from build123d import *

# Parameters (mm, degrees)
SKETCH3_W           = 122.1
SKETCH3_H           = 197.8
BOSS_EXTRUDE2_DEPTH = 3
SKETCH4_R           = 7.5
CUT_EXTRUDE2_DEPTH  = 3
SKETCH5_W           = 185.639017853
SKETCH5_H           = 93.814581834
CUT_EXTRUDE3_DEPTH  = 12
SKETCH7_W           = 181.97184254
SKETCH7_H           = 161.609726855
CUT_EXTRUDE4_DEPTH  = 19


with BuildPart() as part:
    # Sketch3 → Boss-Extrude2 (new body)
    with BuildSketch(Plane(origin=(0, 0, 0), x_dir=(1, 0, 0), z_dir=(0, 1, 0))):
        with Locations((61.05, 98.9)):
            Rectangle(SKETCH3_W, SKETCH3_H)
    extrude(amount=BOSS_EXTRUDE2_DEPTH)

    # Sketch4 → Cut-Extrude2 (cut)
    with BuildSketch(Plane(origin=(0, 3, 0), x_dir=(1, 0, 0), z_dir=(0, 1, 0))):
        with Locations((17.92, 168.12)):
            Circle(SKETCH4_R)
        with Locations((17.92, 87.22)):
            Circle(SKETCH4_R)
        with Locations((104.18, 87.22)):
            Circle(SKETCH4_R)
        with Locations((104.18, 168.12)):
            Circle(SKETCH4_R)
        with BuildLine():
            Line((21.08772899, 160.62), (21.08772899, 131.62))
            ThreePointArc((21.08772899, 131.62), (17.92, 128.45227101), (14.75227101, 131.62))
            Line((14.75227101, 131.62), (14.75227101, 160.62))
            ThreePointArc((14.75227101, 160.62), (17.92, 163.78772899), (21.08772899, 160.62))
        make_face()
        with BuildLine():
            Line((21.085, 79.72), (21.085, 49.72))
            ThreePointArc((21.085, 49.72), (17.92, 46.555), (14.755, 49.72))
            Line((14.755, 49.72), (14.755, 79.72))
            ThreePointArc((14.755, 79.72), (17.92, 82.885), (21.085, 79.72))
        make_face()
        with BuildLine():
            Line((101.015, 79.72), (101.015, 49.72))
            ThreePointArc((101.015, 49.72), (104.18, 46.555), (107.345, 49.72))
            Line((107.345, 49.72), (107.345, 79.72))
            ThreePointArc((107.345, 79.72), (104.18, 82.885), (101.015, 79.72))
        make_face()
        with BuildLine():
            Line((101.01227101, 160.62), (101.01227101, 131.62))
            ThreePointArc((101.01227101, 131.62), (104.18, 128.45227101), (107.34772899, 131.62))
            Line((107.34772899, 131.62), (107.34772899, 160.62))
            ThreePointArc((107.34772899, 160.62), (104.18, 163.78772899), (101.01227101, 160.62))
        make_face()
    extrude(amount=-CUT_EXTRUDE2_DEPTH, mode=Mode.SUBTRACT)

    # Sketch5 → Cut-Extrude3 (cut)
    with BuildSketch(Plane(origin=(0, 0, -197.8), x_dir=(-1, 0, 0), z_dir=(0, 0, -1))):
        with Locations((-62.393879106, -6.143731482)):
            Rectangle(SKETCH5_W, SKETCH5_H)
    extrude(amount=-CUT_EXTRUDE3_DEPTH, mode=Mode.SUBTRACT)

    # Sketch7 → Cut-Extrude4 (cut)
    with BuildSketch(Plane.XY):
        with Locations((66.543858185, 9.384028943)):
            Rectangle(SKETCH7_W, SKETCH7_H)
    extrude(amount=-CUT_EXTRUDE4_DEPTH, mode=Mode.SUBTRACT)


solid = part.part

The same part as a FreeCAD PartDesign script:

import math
import FreeCAD as App
import Part
import Sketcher
Q = App.Units.Quantity

doc = App.newDocument("Part")
params = doc.addObject("Spreadsheet::Sheet", "Params")
for row, (alias, value) in enumerate([
    ("sketch1_width", "122.1 mm"),
    ("sketch1_height", "197.8 mm"),
    ("pad1_length", "3 mm"),
    ("sketch2_radius", "7.5 mm"),
    ("sketch2_height", "29 mm"),
    ("sketch2_height2", "30 mm"),
    ("pocket1_length", "3 mm"),
    ("pocket2_length", "12 mm"),
    ("pocket3_length", "19 mm"),
], start=1):
    params.set(f"A{row}", alias)
    params.set(f"B{row}", "=" + value)
    params.setAlias(f"B{row}", alias)

body = doc.addObject("PartDesign::Body", "Body")

# Sketch on XZ plane
sketch1 = body.newObject("Sketcher::SketchObject", "Sketch")
sketch1.AttachmentSupport = (doc.getObject("XZ_Plane"), [""])
sketch1.MapMode = "FlatFace"
sketch1.addGeometry(Part.LineSegment(App.Vector(0, -198, 0), App.Vector(0, 0, 0)), False)
sketch1.addGeometry(Part.LineSegment(App.Vector(0, 0, 0), App.Vector(122, 0, 0)), False)
sketch1.addGeometry(Part.LineSegment(App.Vector(122, 0, 0), App.Vector(122, -198, 0)), False)
sketch1.addGeometry(Part.LineSegment(App.Vector(122, -198, 0), App.Vector(0, -198, 0)), False)
sketch1.addConstraint(Sketcher.Constraint("Coincident", 0, 2, 1, 1))
sketch1.addConstraint(Sketcher.Constraint("Coincident", 1, 2, 2, 1))
sketch1.addConstraint(Sketcher.Constraint("Coincident", 2, 2, 3, 1))
sketch1.addConstraint(Sketcher.Constraint("Coincident", 3, 2, 0, 1))
sketch1.addConstraint(Sketcher.Constraint("Vertical", 0))
sketch1.addConstraint(Sketcher.Constraint("Horizontal", 1))
sketch1.addConstraint(Sketcher.Constraint("Vertical", 2))
sketch1.addConstraint(Sketcher.Constraint("Horizontal", 3))
sketch1.addConstraint(Sketcher.Constraint("Coincident", 0, 2, -1, 1))
sketch1.addConstraint(Sketcher.Constraint("DistanceX", 1, 1, 1, 2, Q("122.1 mm")))
sketch1.addConstraint(Sketcher.Constraint("DistanceY", 0, 1, 0, 2, Q("197.8 mm")))
sketch1.setExpression("Constraints[9]", "Params.sketch1_width")
sketch1.setExpression("Constraints[10]", "Params.sketch1_height")
pad1 = body.newObject("PartDesign::Pad", "Pad")
pad1.Profile = sketch1
pad1.setExpression("Length", "Params.pad1_length")
pad1.Reversed = True

# Sketch on XZ plane
sketch2 = body.newObject("Sketcher::SketchObject", "Sketch001")
sketch2.AttachmentSupport = (doc.getObject("XZ_Plane"), [""])
sketch2.MapMode = "FlatFace"
sketch2.AttachmentOffset = App.Placement(App.Vector(0, 0, -3), App.Rotation())
sketch2.addGeometry(Part.ArcOfCircle(Part.Circle(App.Vector(17.9, -168.1, 0), App.Vector(0, 0, 1), 7.5), math.radians(114), math.radians(426)), False)
sketch2.addGeometry(Part.ArcOfCircle(Part.Circle(App.Vector(17.9, -160.6, 0), App.Vector(0, 0, 1), 3.2), math.radians(180), math.radians(192.19)), False)
sketch2.addGeometry(Part.LineSegment(App.Vector(14.8, -160.6, 0), App.Vector(14.8, -131.6, 0)), False)
sketch2.addGeometry(Part.ArcOfCircle(Part.Circle(App.Vector(17.9, -131.6, 0), App.Vector(0, 0, 1), 3.2), math.radians(0), math.radians(180)), False)
sketch2.addGeometry(Part.LineSegment(App.Vector(21.1, -131.6, 0), App.Vector(21.1, -160.6, 0)), False)
sketch2.addGeometry(Part.ArcOfCircle(Part.Circle(App.Vector(17.9, -160.6, 0), App.Vector(0, 0, 1), 3.2), math.radians(-12.19), math.radians(0)), False)
sketch2.addGeometry(Part.ArcOfCircle(Part.Circle(App.Vector(17.9, -87.2, 0), App.Vector(0, 0, 1), 7.5), math.radians(114), math.radians(426)), False)
sketch2.addGeometry(Part.ArcOfCircle(Part.Circle(App.Vector(17.9, -79.7, 0), App.Vector(0, 0, 1), 3.2), math.radians(180), math.radians(192.18)), False)
sketch2.addGeometry(Part.LineSegment(App.Vector(14.8, -79.7, 0), App.Vector(14.8, -49.7, 0)), False)
sketch2.addGeometry(Part.ArcOfCircle(Part.Circle(App.Vector(17.9, -49.7, 0), App.Vector(0, 0, 1), 3.2), math.radians(0), math.radians(180)), False)
sketch2.addGeometry(Part.LineSegment(App.Vector(21.1, -49.7, 0), App.Vector(21.1, -79.7, 0)), False)
sketch2.addGeometry(Part.ArcOfCircle(Part.Circle(App.Vector(17.9, -79.7, 0), App.Vector(0, 0, 1), 3.2), math.radians(-12.18), math.radians(0)), False)
sketch2.addGeometry(Part.ArcOfCircle(Part.Circle(App.Vector(104.2, -87.2, 0), App.Vector(0, 0, 1), 7.5), math.radians(114), math.radians(426)), False)
sketch2.addGeometry(Part.ArcOfCircle(Part.Circle(App.Vector(104.2, -79.7, 0), App.Vector(0, 0, 1), 3.2), math.radians(180), math.radians(192.18)), False)
sketch2.addGeometry(Part.LineSegment(App.Vector(101, -79.7, 0), App.Vector(101, -49.7, 0)), False)
sketch2.addGeometry(Part.ArcOfCircle(Part.Circle(App.Vector(104.2, -49.7, 0), App.Vector(0, 0, 1), 3.2), math.radians(0), math.radians(180)), False)
sketch2.addGeometry(Part.LineSegment(App.Vector(107.3, -49.7, 0), App.Vector(107.3, -79.7, 0)), False)
sketch2.addGeometry(Part.ArcOfCircle(Part.Circle(App.Vector(104.2, -79.7, 0), App.Vector(0, 0, 1), 3.2), math.radians(-12.18), math.radians(0)), False)
sketch2.addGeometry(Part.ArcOfCircle(Part.Circle(App.Vector(104.2, -168.1, 0), App.Vector(0, 0, 1), 7.5), math.radians(114), math.radians(426)), False)
sketch2.addGeometry(Part.ArcOfCircle(Part.Circle(App.Vector(104.2, -160.6, 0), App.Vector(0, 0, 1), 3.2), math.radians(180), math.radians(192.19)), False)
sketch2.addGeometry(Part.LineSegment(App.Vector(101, -160.6, 0), App.Vector(101, -131.6, 0)), False)
sketch2.addGeometry(Part.ArcOfCircle(Part.Circle(App.Vector(104.2, -131.6, 0), App.Vector(0, 0, 1), 3.2), math.radians(0), math.radians(180)), False)
sketch2.addGeometry(Part.LineSegment(App.Vector(107.3, -131.6, 0), App.Vector(107.3, -160.6, 0)), False)
sketch2.addGeometry(Part.ArcOfCircle(Part.Circle(App.Vector(104.2, -160.6, 0), App.Vector(0, 0, 1), 3.2), math.radians(-12.19), math.radians(0)), False)
sketch2.addConstraint(Sketcher.Constraint("Coincident", 0, 1, 1, 2))
sketch2.addConstraint(Sketcher.Constraint("Tangent", 1, 1, 2, 1))
sketch2.addConstraint(Sketcher.Constraint("Tangent", 2, 2, 3, 2))
sketch2.addConstraint(Sketcher.Constraint("Tangent", 3, 1, 4, 1))
sketch2.addConstraint(Sketcher.Constraint("Tangent", 4, 2, 5, 2))
sketch2.addConstraint(Sketcher.Constraint("Coincident", 5, 1, 0, 2))
sketch2.addConstraint(Sketcher.Constraint("Coincident", 6, 1, 7, 2))
sketch2.addConstraint(Sketcher.Constraint("Tangent", 7, 1, 8, 1))
sketch2.addConstraint(Sketcher.Constraint("Tangent", 8, 2, 9, 2))
sketch2.addConstraint(Sketcher.Constraint("Tangent", 9, 1, 10, 1))
sketch2.addConstraint(Sketcher.Constraint("Tangent", 10, 2, 11, 2))
sketch2.addConstraint(Sketcher.Constraint("Coincident", 11, 1, 6, 2))
sketch2.addConstraint(Sketcher.Constraint("Coincident", 12, 1, 13, 2))
sketch2.addConstraint(Sketcher.Constraint("Tangent", 13, 1, 14, 1))
sketch2.addConstraint(Sketcher.Constraint("Tangent", 14, 2, 15, 2))
sketch2.addConstraint(Sketcher.Constraint("Tangent", 15, 1, 16, 1))
sketch2.addConstraint(Sketcher.Constraint("Tangent", 16, 2, 17, 2))
sketch2.addConstraint(Sketcher.Constraint("Coincident", 17, 1, 12, 2))
sketch2.addConstraint(Sketcher.Constraint("Coincident", 18, 1, 19, 2))
sketch2.addConstraint(Sketcher.Constraint("Tangent", 19, 1, 20, 1))
sketch2.addConstraint(Sketcher.Constraint("Tangent", 20, 2, 21, 2))
sketch2.addConstraint(Sketcher.Constraint("Tangent", 21, 1, 22, 1))
sketch2.addConstraint(Sketcher.Constraint("Tangent", 22, 2, 23, 2))
sketch2.addConstraint(Sketcher.Constraint("Coincident", 23, 1, 18, 2))
sketch2.addConstraint(Sketcher.Constraint("Vertical", 2))
sketch2.addConstraint(Sketcher.Constraint("Vertical", 4))
sketch2.addConstraint(Sketcher.Constraint("Vertical", 8))
sketch2.addConstraint(Sketcher.Constraint("Vertical", 10))
sketch2.addConstraint(Sketcher.Constraint("Vertical", 14))
sketch2.addConstraint(Sketcher.Constraint("Vertical", 16))
sketch2.addConstraint(Sketcher.Constraint("Vertical", 20))
sketch2.addConstraint(Sketcher.Constraint("Vertical", 22))
sketch2.addConstraint(Sketcher.Constraint("Coincident", 5, 3, 1, 3))
sketch2.addConstraint(Sketcher.Constraint("Coincident", 11, 3, 7, 3))
sketch2.addConstraint(Sketcher.Constraint("Coincident", 17, 3, 13, 3))
sketch2.addConstraint(Sketcher.Constraint("Coincident", 23, 3, 19, 3))
sketch2.addConstraint(Sketcher.Constraint("Equal", 1, 3))
sketch2.addConstraint(Sketcher.Constraint("Equal", 0, 6))
sketch2.addConstraint(Sketcher.Constraint("Equal", 7, 9))
sketch2.addConstraint(Sketcher.Constraint("Equal", 6, 12))
sketch2.addConstraint(Sketcher.Constraint("Equal", 11, 13))
sketch2.addConstraint(Sketcher.Constraint("Equal", 13, 15))
sketch2.addConstraint(Sketcher.Constraint("Equal", 12, 18))
sketch2.addConstraint(Sketcher.Constraint("Equal", 5, 19))
sketch2.addConstraint(Sketcher.Constraint("Equal", 19, 21))
sketch2.addConstraint(Sketcher.Constraint("Horizontal", 6, 3, 12, 3))
sketch2.addConstraint(Sketcher.Constraint("Horizontal", 11, 3, 13, 3))
sketch2.addConstraint(Sketcher.Constraint("Horizontal", 9, 3, 15, 3))
sketch2.addConstraint(Sketcher.Constraint("Horizontal", 0, 3, 18, 3))
sketch2.addConstraint(Sketcher.Constraint("Horizontal", 5, 3, 19, 3))
sketch2.addConstraint(Sketcher.Constraint("Horizontal", 3, 3, 21, 3))
sketch2.addConstraint(Sketcher.Constraint("Horizontal", 0, 1, 5, 1))
sketch2.addConstraint(Sketcher.Constraint("Horizontal", 6, 1, 11, 1))
sketch2.addConstraint(Sketcher.Constraint("Horizontal", 11, 1, 12, 1))
sketch2.addConstraint(Sketcher.Constraint("Horizontal", 5, 1, 18, 1))
sketch2.addConstraint(Sketcher.Constraint("Vertical", 5, 3, 6, 3))
sketch2.addConstraint(Sketcher.Constraint("Vertical", 17, 3, 18, 3))
sketch2.addConstraint(Sketcher.Constraint("Radius", 0, Q("7.5 mm")))
sketch2.addConstraint(Sketcher.Constraint("DistanceY", 2, 1, 2, 2, Q("29 mm")))
sketch2.addConstraint(Sketcher.Constraint("DistanceY", 8, 1, 8, 2, Q("30 mm")))
sketch2.addConstraint(Sketcher.Constraint("Radius", 7, Q("3.165 mm")))
sketch2.addConstraint(Sketcher.Constraint("DistanceY", 0, 3, 1, 3, Q("7.5 mm")))
sketch2.addConstraint(Sketcher.Constraint("DistanceY", 3, 3, 6, 3, Q("44.4 mm")))
sketch2.addConstraint(Sketcher.Constraint("DistanceY", 6, 3, 7, 3, Q("7.5 mm")))
sketch2.addConstraint(Sketcher.Constraint("DistanceX", -1, 1, 0, 3, Q("17.92 mm")))
sketch2.addConstraint(Sketcher.Constraint("DistanceY", 0, 3, -1, 1, Q("168.12 mm")))
sketch2.addConstraint(Sketcher.Constraint("DistanceX", -1, 1, 12, 3, Q("104.18 mm")))
sketch2.addConstraint(Sketcher.Constraint("Radius", 1, Q("3.167729 mm")))
sketch2.setExpression("Constraints[57]", "Params.sketch2_radius")
sketch2.setExpression("Constraints[58]", "Params.sketch2_height")
sketch2.setExpression("Constraints[59]", "Params.sketch2_height2")
pocket1 = body.newObject("PartDesign::Pocket", "Pocket")
pocket1.Profile = sketch2
pocket1.setExpression("Length", "Params.pocket1_length")
pocket1.Reversed = True

# Sketch on XY plane
sketch3 = body.newObject("Sketcher::SketchObject", "Sketch002")
sketch3.AttachmentSupport = (doc.getObject("XY_Plane"), [""])
sketch3.MapMode = "FlatFace"
sketch3.AttachmentOffset = App.Placement(App.Vector(0, 0, -197.8), App.Rotation())
sketch3.addGeometry(Part.LineSegment(App.Vector(155, 41, 0), App.Vector(155, -53, 0)), False)
sketch3.addGeometry(Part.LineSegment(App.Vector(155, -53, 0), App.Vector(-30, -53, 0)), False)
sketch3.addGeometry(Part.LineSegment(App.Vector(-30, -53, 0), App.Vector(-30, 41, 0)), False)
sketch3.addGeometry(Part.LineSegment(App.Vector(-30, 41, 0), App.Vector(155, 41, 0)), False)
sketch3.addConstraint(Sketcher.Constraint("Coincident", 0, 2, 1, 1))
sketch3.addConstraint(Sketcher.Constraint("Coincident", 1, 2, 2, 1))
sketch3.addConstraint(Sketcher.Constraint("Coincident", 2, 2, 3, 1))
sketch3.addConstraint(Sketcher.Constraint("Coincident", 3, 2, 0, 1))
sketch3.addConstraint(Sketcher.Constraint("Vertical", 0))
sketch3.addConstraint(Sketcher.Constraint("Horizontal", 1))
sketch3.addConstraint(Sketcher.Constraint("Vertical", 2))
sketch3.addConstraint(Sketcher.Constraint("Horizontal", 3))
sketch3.addConstraint(Sketcher.Constraint("DistanceY", 0, 2, 0, 1, Q("93.814582 mm")))
sketch3.addConstraint(Sketcher.Constraint("DistanceX", 1, 2, 1, 1, Q("185.639018 mm")))
sketch3.addConstraint(Sketcher.Constraint("DistanceX", -1, 1, 0, 2, Q("155.213388 mm")))
sketch3.addConstraint(Sketcher.Constraint("DistanceY", -1, 1, 2, 2, Q("40.763559 mm")))
pocket2 = body.newObject("PartDesign::Pocket", "Pocket001")
pocket2.Profile = sketch3
pocket2.setExpression("Length", "Params.pocket2_length")
pocket2.Reversed = True

# Sketch on XY plane
sketch4 = body.newObject("Sketcher::SketchObject", "Sketch003")
sketch4.AttachmentSupport = (doc.getObject("XY_Plane"), [""])
sketch4.MapMode = "FlatFace"
sketch4.addGeometry(Part.LineSegment(App.Vector(-24, 90, 0), App.Vector(-24, -71, 0)), False)
sketch4.addGeometry(Part.LineSegment(App.Vector(-24, -71, 0), App.Vector(158, -71, 0)), False)
sketch4.addGeometry(Part.LineSegment(App.Vector(158, -71, 0), App.Vector(158, 90, 0)), False)
sketch4.addGeometry(Part.LineSegment(App.Vector(158, 90, 0), App.Vector(-24, 90, 0)), False)
sketch4.addConstraint(Sketcher.Constraint("Coincident", 0, 2, 1, 1))
sketch4.addConstraint(Sketcher.Constraint("Coincident", 1, 2, 2, 1))
sketch4.addConstraint(Sketcher.Constraint("Coincident", 2, 2, 3, 1))
sketch4.addConstraint(Sketcher.Constraint("Coincident", 3, 2, 0, 1))
sketch4.addConstraint(Sketcher.Constraint("Vertical", 0))
sketch4.addConstraint(Sketcher.Constraint("Horizontal", 1))
sketch4.addConstraint(Sketcher.Constraint("Vertical", 2))
sketch4.addConstraint(Sketcher.Constraint("Horizontal", 3))
sketch4.addConstraint(Sketcher.Constraint("DistanceX", 1, 1, 1, 2, Q("181.971843 mm")))
sketch4.addConstraint(Sketcher.Constraint("DistanceY", 0, 2, 0, 1, Q("161.609727 mm")))
sketch4.addConstraint(Sketcher.Constraint("DistanceX", -1, 1, 1, 2, Q("157.529779 mm")))
sketch4.addConstraint(Sketcher.Constraint("DistanceY", 0, 2, -1, 1, Q("71.420834 mm")))
pocket3 = body.newObject("PartDesign::Pocket", "Pocket002")
pocket3.Profile = sketch4
pocket3.setExpression("Length", "Params.pocket3_length")

doc.recompute()
